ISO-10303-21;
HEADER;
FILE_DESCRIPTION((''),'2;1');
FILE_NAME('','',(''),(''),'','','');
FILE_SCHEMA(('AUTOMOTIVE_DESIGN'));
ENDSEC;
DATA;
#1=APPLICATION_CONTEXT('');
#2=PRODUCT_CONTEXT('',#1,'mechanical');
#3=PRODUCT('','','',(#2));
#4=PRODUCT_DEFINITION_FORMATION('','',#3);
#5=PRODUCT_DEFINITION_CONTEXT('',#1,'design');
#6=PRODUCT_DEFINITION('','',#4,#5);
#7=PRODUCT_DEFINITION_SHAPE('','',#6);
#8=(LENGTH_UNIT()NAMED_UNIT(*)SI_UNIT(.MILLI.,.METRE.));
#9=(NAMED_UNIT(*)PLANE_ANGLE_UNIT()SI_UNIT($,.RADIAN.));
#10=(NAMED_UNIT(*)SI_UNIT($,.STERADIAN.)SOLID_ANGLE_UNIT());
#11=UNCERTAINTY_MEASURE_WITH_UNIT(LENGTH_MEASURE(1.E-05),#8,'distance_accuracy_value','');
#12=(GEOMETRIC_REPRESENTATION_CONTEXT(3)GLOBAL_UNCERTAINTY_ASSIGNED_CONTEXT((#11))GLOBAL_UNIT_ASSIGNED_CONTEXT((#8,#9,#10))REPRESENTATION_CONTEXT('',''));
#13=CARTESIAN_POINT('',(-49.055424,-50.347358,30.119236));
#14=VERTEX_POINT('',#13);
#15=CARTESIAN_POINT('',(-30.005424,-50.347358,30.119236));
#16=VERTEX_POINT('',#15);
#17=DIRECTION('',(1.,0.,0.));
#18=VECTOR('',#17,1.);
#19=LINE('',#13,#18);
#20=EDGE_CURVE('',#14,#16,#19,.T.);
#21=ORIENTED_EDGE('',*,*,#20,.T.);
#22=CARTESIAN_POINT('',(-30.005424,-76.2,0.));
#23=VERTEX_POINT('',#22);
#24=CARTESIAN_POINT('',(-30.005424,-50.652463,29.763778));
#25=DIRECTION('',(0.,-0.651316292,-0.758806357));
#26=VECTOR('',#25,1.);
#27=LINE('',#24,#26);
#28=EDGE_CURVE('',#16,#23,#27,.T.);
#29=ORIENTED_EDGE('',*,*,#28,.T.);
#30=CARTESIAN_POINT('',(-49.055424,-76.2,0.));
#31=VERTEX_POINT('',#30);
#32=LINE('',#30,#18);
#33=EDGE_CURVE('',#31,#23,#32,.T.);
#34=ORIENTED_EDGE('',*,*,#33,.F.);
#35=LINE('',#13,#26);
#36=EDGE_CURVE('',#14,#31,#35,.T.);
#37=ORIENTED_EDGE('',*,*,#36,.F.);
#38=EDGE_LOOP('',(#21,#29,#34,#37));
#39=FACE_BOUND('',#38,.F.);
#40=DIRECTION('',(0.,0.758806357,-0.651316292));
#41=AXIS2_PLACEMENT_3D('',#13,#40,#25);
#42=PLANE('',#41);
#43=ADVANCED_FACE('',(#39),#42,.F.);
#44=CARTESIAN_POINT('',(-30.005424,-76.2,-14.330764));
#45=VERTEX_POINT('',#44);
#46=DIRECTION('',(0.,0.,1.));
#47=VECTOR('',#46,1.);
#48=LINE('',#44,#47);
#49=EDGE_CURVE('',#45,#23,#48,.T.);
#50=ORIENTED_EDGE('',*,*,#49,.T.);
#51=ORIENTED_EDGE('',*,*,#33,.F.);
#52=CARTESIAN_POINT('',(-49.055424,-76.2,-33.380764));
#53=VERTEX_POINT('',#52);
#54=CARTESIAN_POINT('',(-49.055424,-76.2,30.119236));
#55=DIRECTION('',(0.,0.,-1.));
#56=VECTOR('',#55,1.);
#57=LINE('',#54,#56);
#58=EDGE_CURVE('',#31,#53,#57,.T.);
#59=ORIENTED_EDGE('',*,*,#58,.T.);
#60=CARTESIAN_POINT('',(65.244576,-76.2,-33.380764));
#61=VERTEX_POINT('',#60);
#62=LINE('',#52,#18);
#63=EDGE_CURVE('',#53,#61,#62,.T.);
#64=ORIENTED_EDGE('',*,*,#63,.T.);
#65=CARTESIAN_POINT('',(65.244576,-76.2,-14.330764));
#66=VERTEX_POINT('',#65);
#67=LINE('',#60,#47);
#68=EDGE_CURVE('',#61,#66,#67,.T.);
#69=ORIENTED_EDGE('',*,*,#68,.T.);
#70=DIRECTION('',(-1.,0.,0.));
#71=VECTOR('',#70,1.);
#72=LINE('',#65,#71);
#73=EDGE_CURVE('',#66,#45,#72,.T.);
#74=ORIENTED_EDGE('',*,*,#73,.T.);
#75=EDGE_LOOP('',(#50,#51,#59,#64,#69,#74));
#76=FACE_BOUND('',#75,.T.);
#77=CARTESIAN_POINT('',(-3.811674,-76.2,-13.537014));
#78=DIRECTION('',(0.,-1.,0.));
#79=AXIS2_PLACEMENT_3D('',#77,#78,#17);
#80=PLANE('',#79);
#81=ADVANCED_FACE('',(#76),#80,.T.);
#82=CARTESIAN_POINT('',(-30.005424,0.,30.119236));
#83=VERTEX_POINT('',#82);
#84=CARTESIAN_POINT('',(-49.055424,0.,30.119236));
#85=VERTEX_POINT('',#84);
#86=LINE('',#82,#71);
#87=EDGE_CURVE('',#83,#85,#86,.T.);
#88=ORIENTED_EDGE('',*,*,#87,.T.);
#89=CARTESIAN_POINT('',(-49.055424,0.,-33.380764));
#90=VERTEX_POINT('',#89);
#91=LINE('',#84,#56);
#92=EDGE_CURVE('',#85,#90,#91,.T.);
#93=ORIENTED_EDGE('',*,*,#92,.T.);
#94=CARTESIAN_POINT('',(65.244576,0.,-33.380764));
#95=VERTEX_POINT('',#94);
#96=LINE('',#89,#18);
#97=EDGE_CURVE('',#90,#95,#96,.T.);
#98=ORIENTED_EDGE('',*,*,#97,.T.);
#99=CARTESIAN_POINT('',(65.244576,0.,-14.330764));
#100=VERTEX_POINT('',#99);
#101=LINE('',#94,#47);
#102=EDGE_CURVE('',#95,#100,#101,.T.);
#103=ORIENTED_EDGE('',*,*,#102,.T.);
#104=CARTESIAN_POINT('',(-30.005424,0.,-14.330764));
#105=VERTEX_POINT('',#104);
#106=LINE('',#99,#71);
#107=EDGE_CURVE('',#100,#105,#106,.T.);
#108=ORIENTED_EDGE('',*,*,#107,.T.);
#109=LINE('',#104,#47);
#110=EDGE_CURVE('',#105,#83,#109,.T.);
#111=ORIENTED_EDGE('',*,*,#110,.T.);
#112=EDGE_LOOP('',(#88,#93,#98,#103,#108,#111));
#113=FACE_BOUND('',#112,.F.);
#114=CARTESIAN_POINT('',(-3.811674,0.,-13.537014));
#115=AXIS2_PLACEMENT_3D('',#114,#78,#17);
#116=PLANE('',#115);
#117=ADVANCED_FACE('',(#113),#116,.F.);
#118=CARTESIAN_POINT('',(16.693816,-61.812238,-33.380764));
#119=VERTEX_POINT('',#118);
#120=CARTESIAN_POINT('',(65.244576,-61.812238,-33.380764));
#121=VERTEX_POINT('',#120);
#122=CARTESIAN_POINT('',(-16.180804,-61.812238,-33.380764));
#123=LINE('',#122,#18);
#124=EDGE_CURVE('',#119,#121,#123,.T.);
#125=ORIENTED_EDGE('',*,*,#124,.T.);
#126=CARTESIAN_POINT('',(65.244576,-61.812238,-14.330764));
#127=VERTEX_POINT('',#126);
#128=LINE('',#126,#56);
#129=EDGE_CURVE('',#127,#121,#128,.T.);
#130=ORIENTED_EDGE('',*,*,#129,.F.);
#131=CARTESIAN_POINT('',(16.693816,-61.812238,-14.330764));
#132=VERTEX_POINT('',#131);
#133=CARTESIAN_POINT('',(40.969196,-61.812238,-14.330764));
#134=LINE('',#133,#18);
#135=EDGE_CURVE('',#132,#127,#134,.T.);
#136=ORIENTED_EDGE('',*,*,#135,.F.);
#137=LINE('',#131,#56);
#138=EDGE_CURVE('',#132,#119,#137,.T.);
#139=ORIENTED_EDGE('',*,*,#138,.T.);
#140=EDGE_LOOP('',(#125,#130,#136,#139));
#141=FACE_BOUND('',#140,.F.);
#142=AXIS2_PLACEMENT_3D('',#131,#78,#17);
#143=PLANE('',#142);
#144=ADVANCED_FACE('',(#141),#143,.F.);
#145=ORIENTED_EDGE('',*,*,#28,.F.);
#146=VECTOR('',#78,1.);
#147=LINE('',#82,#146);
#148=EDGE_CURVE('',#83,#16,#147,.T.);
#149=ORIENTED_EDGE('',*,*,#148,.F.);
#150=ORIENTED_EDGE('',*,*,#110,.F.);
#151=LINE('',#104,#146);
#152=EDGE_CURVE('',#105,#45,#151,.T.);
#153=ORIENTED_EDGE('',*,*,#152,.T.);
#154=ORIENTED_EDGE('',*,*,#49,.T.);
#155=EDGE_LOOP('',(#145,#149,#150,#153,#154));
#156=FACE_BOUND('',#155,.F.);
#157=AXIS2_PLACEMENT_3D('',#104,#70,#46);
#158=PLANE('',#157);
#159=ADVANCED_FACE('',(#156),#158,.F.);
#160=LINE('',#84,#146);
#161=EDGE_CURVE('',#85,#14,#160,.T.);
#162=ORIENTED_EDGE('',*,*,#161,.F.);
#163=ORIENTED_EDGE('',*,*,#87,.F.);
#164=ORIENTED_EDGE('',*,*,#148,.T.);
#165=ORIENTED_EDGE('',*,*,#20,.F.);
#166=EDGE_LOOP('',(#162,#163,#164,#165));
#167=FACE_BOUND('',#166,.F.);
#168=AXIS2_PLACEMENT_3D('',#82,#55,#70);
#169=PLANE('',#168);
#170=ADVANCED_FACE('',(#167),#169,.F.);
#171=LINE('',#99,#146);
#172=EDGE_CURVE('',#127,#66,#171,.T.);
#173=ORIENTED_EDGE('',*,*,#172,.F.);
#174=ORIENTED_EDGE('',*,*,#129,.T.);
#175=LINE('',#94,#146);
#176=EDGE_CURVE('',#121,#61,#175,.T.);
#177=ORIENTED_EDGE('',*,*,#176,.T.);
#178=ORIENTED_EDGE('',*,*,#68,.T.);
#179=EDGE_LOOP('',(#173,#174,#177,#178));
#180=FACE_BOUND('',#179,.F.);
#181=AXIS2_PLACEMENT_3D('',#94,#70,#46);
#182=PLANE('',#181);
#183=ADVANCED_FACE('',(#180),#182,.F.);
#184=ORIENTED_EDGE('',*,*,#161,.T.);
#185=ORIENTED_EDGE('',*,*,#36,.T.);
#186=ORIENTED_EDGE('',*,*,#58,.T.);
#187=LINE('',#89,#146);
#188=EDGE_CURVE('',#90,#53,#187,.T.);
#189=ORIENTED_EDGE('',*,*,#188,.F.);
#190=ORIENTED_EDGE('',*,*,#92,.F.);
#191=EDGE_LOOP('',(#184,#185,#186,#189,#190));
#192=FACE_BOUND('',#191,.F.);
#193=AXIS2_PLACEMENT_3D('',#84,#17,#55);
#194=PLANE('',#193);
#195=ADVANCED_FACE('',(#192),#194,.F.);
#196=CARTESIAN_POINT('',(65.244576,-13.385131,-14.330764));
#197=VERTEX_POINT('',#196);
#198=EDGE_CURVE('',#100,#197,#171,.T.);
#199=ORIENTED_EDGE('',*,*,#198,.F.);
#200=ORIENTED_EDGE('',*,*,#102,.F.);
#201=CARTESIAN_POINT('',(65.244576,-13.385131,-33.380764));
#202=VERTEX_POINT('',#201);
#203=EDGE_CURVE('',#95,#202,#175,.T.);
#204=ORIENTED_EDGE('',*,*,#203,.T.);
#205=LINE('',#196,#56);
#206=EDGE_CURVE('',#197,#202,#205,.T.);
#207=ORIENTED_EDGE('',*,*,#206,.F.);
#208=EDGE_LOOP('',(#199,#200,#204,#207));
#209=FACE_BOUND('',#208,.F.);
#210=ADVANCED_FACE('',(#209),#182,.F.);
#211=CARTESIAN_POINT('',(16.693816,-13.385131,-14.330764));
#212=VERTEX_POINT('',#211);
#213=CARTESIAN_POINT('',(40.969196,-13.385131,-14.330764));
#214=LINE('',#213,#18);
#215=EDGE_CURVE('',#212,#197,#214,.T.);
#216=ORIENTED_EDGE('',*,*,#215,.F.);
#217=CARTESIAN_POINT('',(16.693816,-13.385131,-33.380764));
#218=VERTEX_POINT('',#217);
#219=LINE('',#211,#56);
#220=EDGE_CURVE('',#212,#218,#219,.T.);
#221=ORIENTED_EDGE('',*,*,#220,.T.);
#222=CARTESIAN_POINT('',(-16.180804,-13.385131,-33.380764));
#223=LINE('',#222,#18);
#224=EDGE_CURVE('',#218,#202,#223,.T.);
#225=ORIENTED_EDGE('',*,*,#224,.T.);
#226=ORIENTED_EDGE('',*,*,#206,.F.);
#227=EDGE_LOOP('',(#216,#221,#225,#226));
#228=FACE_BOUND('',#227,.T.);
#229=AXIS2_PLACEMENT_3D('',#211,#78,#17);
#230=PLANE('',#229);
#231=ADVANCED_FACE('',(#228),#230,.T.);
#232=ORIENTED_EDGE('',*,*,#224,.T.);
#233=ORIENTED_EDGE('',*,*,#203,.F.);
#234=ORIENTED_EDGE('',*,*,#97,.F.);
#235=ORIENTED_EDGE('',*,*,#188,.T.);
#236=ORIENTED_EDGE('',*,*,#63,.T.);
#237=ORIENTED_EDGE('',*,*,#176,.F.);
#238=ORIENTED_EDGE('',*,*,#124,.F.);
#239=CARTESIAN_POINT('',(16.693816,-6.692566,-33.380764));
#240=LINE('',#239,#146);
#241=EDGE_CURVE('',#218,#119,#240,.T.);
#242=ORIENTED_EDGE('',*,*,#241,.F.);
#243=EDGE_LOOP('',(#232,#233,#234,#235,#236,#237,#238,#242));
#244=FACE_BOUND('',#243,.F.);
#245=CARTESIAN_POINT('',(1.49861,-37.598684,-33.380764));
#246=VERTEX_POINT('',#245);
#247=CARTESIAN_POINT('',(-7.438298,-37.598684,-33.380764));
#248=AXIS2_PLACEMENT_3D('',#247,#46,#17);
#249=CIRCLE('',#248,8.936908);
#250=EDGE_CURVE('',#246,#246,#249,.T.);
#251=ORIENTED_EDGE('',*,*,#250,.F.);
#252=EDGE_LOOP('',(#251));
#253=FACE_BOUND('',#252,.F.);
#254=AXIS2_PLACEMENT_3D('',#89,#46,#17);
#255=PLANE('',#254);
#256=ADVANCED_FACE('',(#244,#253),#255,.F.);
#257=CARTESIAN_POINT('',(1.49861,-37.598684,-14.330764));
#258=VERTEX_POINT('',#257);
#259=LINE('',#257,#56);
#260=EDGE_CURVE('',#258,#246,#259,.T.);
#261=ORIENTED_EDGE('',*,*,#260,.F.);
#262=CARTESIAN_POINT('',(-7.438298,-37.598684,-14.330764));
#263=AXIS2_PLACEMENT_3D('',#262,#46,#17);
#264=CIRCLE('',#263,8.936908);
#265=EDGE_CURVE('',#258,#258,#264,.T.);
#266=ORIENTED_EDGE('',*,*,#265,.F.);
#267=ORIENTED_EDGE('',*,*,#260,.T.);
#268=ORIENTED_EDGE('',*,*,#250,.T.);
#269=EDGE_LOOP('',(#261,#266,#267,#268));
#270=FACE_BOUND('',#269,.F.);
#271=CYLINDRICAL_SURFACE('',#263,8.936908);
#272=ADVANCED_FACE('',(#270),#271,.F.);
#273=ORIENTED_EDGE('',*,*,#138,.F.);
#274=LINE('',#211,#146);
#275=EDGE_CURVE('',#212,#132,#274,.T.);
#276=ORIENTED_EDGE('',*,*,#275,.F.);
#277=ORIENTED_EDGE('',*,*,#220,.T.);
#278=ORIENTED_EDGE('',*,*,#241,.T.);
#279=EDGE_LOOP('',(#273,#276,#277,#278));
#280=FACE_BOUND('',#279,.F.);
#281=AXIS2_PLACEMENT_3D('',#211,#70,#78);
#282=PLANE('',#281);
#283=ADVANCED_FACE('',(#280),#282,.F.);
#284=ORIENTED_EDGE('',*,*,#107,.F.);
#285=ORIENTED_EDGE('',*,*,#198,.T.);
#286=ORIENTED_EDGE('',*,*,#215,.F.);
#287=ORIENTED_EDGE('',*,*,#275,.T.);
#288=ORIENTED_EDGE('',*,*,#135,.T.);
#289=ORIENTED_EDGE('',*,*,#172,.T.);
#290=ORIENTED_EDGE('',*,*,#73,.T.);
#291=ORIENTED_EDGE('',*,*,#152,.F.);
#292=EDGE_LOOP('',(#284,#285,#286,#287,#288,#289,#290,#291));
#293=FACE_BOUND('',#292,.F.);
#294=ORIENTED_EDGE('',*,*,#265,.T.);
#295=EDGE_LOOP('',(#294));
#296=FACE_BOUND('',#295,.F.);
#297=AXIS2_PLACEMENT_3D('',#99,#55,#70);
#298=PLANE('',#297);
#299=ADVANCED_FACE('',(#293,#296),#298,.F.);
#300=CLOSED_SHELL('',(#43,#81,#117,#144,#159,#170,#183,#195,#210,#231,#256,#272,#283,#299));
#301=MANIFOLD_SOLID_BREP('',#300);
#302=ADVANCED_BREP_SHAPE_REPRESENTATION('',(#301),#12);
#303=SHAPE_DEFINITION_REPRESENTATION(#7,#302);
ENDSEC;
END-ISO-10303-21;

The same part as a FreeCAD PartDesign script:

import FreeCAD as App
import Part
import Sketcher
Q = App.Units.Quantity

doc = App.newDocument("Part")
params = doc.addObject("Spreadsheet::Sheet", "Params")
for row, (alias, value) in enumerate([
    ("sketch1_width", "4.5 in"),
    ("sketch1_height", "2.5 in"),
    ("sketch1_width2", "0.75 in"),
    ("pad1_length", "3 in"),
], start=1):
    params.set(f"A{row}", alias)
    params.set(f"B{row}", "=" + value)
    params.setAlias(f"B{row}", alias)

body = doc.addObject("PartDesign::Body", "Body")

sketch1 = body.newObject("Sketcher::SketchObject", "Sketch")
sketch1.AttachmentSupport = (doc.getObject("XZ_Plane"), [""])
sketch1.MapMode = "FlatFace"
sketch1.addGeometry(Part.LineSegment(App.Vector(-30, 30, 0), App.Vector(-49, 30, 0)), False)
sketch1.addGeometry(Part.LineSegment(App.Vector(-49, 30, 0), App.Vector(-49, -33, 0)), False)
sketch1.addGeometry(Part.LineSegment(App.Vector(-49, -33, 0), App.Vector(65, -33, 0)), False)
sketch1.addGeometry(Part.LineSegment(App.Vector(65, -33, 0), App.Vector(65, -14, 0)), False)
sketch1.addGeometry(Part.LineSegment(App.Vector(65, -14, 0), App.Vector(-30, -14, 0)), False)
sketch1.addGeometry(Part.LineSegment(App.Vector(-30, -14, 0), App.Vector(-30, 30, 0)), False)
sketch1.addConstraint(Sketcher.Constraint("Coincident", 0, 2, 1, 1))
sketch1.addConstraint(Sketcher.Constraint("Coincident", 1, 2, 2, 1))
sketch1.addConstraint(Sketcher.Constraint("Coincident", 2, 2, 3, 1))
sketch1.addConstraint(Sketcher.Constraint("Coincident", 3, 2, 4, 1))
sketch1.addConstraint(Sketcher.Constraint("Coincident", 4, 2, 5, 1))
sketch1.addConstraint(Sketcher.Constraint("Coincident", 5, 2, 0, 1))
sketch1.addConstraint(Sketcher.Constraint("Horizontal", 0))
sketch1.addConstraint(Sketcher.Constraint("Vertical", 1))
sketch1.addConstraint(Sketcher.Constraint("Horizontal", 2))
sketch1.addConstraint(Sketcher.Constraint("Vertical", 3))
sketch1.addConstraint(Sketcher.Constraint("Horizontal", 4))
sketch1.addConstraint(Sketcher.Constraint("Vertical", 5))
sketch1.addConstraint(Sketcher.Constraint("Equal", 0, 3))
sketch1.addConstraint(Sketcher.Constraint("DistanceX", 2, 1, 2, 2, Q("4.5 in")))
sketch1.addConstraint(Sketcher.Constraint("DistanceY", 1, 2, 1, 1, Q("2.5 in")))
sketch1.addConstraint(Sketcher.Constraint("DistanceX", 0, 2, 0, 1, Q("0.75 in")))
sketch1.addConstraint(Sketcher.Constraint("DistanceX", 0, 2, -1, 1, Q("49.055424 mm")))
sketch1.addConstraint(Sketcher.Constraint("DistanceY", -1, 1, 0, 2, Q("30.119236 mm")))
sketch1.setExpression("Constraints[13]", "Params.sketch1_width")
sketch1.setExpression("Constraints[14]", "Params.sketch1_height")
sketch1.setExpression("Constraints[15]", "Params.sketch1_width2")
pad1 = body.newObject("PartDesign::Pad", "Pad")
pad1.Profile = sketch1
pad1.setExpression("Length", "Params.pad1_length")

sketch2 = body.newObject("Sketcher::SketchObject", "Sketch001")
sketch2.AttachmentSupport = (doc.getObject("YZ_Plane"), [""])
sketch2.MapMode = "FlatFace"
sketch2.AttachmentOffset = App.Placement(App.Vector(0, 0, -49.055424), App.Rotation())
sketch2.addGeometry(Part.LineSegment(App.Vector(-76, 0, 0), App.Vector(-76, 30, 0)), False)
sketch2.addGeometry(Part.LineSegment(App.Vector(-76, 30, 0), App.Vector(-50, 30, 0)), False)
sketch2.addGeometry(Part.LineSegment(App.Vector(-50, 30, 0), App.Vector(-76, 0, 0)), False)
sketch2.addConstraint(Sketcher.Constraint("Coincident", 0, 2, 1, 1))
sketch2.addConstraint(Sketcher.Constraint("Coincident", 1, 2, 2, 1))
sketch2.addConstraint(Sketcher.Constraint("Coincident", 2, 2, 0, 1))
sketch2.addConstraint(Sketcher.Constraint("Vertical", 0))
sketch2.addConstraint(Sketcher.Constraint("Horizontal", 1))
sketch2.addConstraint(Sketcher.Constraint("PointOnObject", 2, 2, -1))
sketch2.addConstraint(Sketcher.Constraint("DistanceX", 0, 2, -1, 1, Q("3 in")))
sketch2.addConstraint(Sketcher.Constraint("DistanceX", 1, 1, 1, 2, Q("25.852642 mm")))
sketch2.addConstraint(Sketcher.Constraint("DistanceY", 0, 1, 0, 2, Q("30.119236 mm")))
pocket1 = body.newObject("PartDesign::Pocket", "Pocket")
pocket1.Profile = sketch2
pocket1.Type = "ThroughAll"
pocket1.Reversed = True

sketch3 = body.newObject("Sketcher::SketchObject", "Sketch002")
sketch3.AttachmentSupport = (doc.getObject("YZ_Plane"), [""])
sketch3.MapMode = "FlatFace"
sketch3.AttachmentOffset = App.Placement(App.Vector(0, 0, -49.055424), App.Rotation())
sketch3.addGeometry(Part.LineSegment(App.Vector(-76, 30, 0), App.Vector(-50, 30, 0)), False)
sketch3.addGeometry(Part.LineSegment(App.Vector(-50, 30, 0), App.Vector(-76, 0, 0)), False)
sketch3.addGeometry(Part.LineSegment(App.Vector(-76, 0, 0), App.Vector(-76, 30, 0)), False)
sketch3.addConstraint(Sketcher.Constraint("Coincident", 0, 2, 1, 1))
sketch3.addConstraint(Sketcher.Constraint("Coincident", 1, 2, 2, 1))
sketch3.addConstraint(Sketcher.Constraint("Coincident", 2, 2, 0, 1))
sketch3.addConstraint(Sketcher.Constraint("Horizontal", 0))
sketch3.addConstraint(Sketcher.Constraint("Vertical", 2))
sketch3.addConstraint(Sketcher.Constraint("PointOnObject", 1, 2, -1))
sketch3.addConstraint(Sketcher.Constraint("DistanceX", 1, 2, -1, 1, Q("3 in")))
sketch3.addConstraint(Sketcher.Constraint("DistanceX", 0, 1, 0, 2, Q("25.852642 mm")))
sketch3.addConstraint(Sketcher.Constraint("DistanceY", 2, 1, 2, 2, Q("30.119236 mm")))
pocket2 = body.newObject("PartDesign::Pocket", "Pocket001")
pocket2.Profile = sketch3
pocket2.Type = "ThroughAll"
pocket2.Reversed = True

sketch4 = body.newObject("Sketcher::SketchObject", "Sketch003")
sketch4.AttachmentSupport = (doc.getObject("XY_Plane"), [""])
sketch4.MapMode = "FlatFace"
sketch4.AttachmentOffset = App.Placement(App.Vector(0, 0, -14.330764), App.Rotation())
sketch4.addGeometry(Part.LineSegment(App.Vector(17, -62, 0), App.Vector(65, -62, 0)), False)
sketch4.addGeometry(Part.LineSegment(App.Vector(65, -62, 0), App.Vector(65, -13, 0)), False)
sketch4.addGeometry(Part.LineSegment(App.Vector(65, -13, 0), App.Vector(17, -13, 0)), False)
sketch4.addGeometry(Part.LineSegment(App.Vector(17, -13, 0), App.Vector(17, -62, 0)), False)
sketch4.addConstraint(Sketcher.Constraint("Coincident", 0, 2, 1, 1))
sketch4.addConstraint(Sketcher.Constraint("Coincident", 1, 2, 2, 1))
sketch4.addConstraint(Sketcher.Constraint("Coincident", 2, 2, 3, 1))
sketch4.addConstraint(Sketcher.Constraint("Coincident", 3, 2, 0, 1))
sketch4.addConstraint(Sketcher.Constraint("Horizontal", 0))
sketch4.addConstraint(Sketcher.Constraint("Vertical", 1))
sketch4.addConstraint(Sketcher.Constraint("Horizontal", 2))
sketch4.addConstraint(Sketcher.Constraint("Vertical", 3))
sketch4.addConstraint(Sketcher.Constraint("DistanceX", 0, 1, 0, 2, Q("48.55076 mm")))
sketch4.addConstraint(Sketcher.Constraint("DistanceY", 1, 1, 1, 2, Q("48.427106 mm")))
sketch4.addConstraint(Sketcher.Constraint("DistanceY", 1, 2, -1, 1, Q("13.385131 mm")))
sketch4.addConstraint(Sketcher.Constraint("DistanceX", -1, 1, 0, 2, Q("65.244576 mm")))
pocket3 = body.newObject("PartDesign::Pocket", "Pocket002")
pocket3.Profile = sketch4
pocket3.Type = "ThroughAll"

sketch5 = body.newObject("Sketcher::SketchObject", "Sketch004")
sketch5.AttachmentSupport = (doc.getObject("XY_Plane"), [""])
sketch5.MapMode = "FlatFace"
sketch5.AttachmentOffset = App.Placement(App.Vector(0, 0, -14.330764), App.Rotation())
sketch5.addGeometry(Part.Circle(App.Vector(-7, -38, 0), App.Vector(0, 0, 1), 9), False)
sketch5.addConstraint(Sketcher.Constraint("Diameter", 0, Q("17.873816 mm")))
sketch5.addConstraint(Sketcher.Constraint("DistanceX", 0, 3, -1, 1, Q("7.438298 mm")))
sketch5.addConstraint(Sketcher.Constraint("DistanceY", 0, 3, -1, 1, Q("37.598684 mm")))
pocket4 = body.newObject("PartDesign::Pocket", "Pocket003")
pocket4.Profile = sketch5
pocket4.Type = "ThroughAll"

doc.recompute()
